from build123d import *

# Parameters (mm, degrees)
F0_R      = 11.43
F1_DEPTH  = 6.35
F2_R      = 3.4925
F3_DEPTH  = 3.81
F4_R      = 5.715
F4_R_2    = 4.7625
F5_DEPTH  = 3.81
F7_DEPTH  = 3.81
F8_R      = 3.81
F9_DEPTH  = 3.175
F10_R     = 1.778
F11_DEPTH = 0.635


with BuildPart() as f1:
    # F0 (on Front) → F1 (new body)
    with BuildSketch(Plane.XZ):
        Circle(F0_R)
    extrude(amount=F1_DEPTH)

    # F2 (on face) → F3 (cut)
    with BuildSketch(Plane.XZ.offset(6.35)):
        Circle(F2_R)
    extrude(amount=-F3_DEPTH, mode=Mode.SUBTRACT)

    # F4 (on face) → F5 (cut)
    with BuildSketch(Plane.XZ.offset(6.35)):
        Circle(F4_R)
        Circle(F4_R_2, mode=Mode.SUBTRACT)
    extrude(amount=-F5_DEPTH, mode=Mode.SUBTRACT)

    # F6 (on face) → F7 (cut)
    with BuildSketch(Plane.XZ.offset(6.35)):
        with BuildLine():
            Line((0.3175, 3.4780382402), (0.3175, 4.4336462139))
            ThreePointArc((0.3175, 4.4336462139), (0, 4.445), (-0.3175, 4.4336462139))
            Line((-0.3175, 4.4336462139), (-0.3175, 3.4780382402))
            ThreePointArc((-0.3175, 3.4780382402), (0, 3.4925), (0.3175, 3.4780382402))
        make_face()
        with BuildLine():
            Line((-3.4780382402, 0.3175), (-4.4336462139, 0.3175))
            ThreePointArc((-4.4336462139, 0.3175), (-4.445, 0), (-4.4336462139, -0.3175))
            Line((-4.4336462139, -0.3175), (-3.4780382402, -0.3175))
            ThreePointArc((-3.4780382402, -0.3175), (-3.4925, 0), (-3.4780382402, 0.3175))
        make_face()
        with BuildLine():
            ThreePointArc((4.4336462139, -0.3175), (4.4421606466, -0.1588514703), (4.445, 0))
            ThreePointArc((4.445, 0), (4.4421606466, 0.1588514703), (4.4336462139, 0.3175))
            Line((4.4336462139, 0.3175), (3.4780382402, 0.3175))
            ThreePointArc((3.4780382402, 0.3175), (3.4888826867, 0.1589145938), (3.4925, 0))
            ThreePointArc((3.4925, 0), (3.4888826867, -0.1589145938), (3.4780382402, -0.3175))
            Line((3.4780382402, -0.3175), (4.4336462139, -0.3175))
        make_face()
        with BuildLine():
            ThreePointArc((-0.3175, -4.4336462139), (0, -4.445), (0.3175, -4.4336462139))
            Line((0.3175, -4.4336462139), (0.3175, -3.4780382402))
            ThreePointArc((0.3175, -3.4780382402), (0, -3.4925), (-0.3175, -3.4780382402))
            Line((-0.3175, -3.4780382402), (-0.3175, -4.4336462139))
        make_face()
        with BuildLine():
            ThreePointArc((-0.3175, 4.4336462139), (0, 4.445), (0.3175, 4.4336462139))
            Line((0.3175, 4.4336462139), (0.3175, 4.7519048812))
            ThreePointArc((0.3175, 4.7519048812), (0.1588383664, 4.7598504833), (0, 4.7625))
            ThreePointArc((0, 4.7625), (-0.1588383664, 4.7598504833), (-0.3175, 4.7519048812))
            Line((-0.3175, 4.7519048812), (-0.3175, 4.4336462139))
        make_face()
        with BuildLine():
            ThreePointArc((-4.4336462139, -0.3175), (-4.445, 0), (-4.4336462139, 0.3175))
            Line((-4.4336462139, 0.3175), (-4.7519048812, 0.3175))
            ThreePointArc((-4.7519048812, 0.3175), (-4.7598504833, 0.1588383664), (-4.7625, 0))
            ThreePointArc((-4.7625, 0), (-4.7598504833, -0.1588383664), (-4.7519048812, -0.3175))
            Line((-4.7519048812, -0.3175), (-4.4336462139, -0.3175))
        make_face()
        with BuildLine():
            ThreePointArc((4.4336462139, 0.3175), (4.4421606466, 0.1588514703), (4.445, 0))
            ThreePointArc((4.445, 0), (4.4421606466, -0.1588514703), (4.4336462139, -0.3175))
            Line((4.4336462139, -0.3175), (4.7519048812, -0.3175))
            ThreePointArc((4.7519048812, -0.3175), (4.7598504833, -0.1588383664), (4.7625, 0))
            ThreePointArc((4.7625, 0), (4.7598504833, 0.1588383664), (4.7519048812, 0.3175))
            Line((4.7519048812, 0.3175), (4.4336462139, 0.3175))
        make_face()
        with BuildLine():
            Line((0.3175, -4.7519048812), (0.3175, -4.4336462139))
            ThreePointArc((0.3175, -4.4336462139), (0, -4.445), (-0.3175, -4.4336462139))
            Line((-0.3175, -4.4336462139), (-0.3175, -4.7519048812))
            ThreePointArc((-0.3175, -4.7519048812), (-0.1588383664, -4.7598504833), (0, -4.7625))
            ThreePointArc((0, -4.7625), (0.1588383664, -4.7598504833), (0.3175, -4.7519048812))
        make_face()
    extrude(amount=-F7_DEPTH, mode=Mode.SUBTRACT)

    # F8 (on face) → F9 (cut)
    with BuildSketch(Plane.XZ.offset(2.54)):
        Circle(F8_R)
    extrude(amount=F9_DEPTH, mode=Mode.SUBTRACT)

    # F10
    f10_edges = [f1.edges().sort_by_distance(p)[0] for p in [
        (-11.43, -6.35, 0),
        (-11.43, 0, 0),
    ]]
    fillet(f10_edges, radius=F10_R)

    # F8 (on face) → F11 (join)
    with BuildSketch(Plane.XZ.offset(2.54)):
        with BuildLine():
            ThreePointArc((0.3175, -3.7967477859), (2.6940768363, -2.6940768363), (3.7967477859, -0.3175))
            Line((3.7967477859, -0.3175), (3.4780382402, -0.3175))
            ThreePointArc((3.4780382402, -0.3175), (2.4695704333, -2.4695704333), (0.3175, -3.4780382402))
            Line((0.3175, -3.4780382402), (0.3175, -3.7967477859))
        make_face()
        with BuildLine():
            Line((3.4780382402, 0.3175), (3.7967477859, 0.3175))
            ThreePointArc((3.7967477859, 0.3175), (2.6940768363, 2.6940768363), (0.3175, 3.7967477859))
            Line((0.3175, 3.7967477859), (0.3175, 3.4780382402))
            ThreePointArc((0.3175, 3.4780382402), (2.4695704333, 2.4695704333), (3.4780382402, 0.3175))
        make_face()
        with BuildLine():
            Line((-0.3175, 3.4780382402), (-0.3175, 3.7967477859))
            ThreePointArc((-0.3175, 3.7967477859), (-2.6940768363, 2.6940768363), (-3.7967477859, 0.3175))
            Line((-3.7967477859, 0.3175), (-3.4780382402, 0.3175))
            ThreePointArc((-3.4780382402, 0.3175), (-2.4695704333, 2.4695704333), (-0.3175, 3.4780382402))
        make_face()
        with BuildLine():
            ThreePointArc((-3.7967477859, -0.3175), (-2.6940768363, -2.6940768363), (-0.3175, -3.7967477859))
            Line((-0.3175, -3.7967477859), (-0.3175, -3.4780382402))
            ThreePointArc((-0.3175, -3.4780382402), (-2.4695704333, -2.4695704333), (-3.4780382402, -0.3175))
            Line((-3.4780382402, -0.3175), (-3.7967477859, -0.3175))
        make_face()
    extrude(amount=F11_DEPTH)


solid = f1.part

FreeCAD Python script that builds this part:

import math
import FreeCAD as App
import Part
import Sketcher

V = App.Vector
Q = App.Units.Quantity


def edges_at(feature, points):
    """Names of the edges that pass closest to the given points."""
    edges = feature.Shape.Edges
    near = lambda p: min(range(len(edges)), key=lambda i: edges[i].distToShape(Part.Vertex(*p))[0])
    return sorted({f"Edge{near(p) + 1}" for p in points})

doc = App.newDocument("Part")
params = doc.addObject("Spreadsheet::Sheet", "Params")
for row, (alias, value) in enumerate([
    ("sketch1_diameter", "0.9 in"),
    ("pad1_length", "0.25 in"),
    ("sketch2_diameter", "0.275 in"),
    ("pocket1_length", "0.15 in"),
    ("sketch3_diameter", "0.45 in"),
    ("sketch3_diameter2", "0.375 in"),
    ("pocket2_length", "0.15 in"),
    ("sketch4_radius", "0.1875 in"),
    ("pocket3_length", "0.15 in"),
    ("sketch5_diameter", "0.3 in"),
    ("pocket4_length", "0.125 in"),
    ("fillet_radius", "0.07 in"),
    ("sketch6_radius", "0.15 in"),
    ("pad2_length", "0.025 in"),
], start=1):
    params.set(f"A{row}", alias)
    params.set(f"B{row}", "=" + value)
    params.setAlias(f"B{row}", alias)

body = doc.addObject("PartDesign::Body", "Body")

sketch1 = body.newObject("Sketcher::SketchObject", "Sketch")
sketch1.AttachmentSupport = (doc.getObject("XZ_Plane"), [""])
sketch1.MapMode = "FlatFace"
sketch1.addGeometry(Part.Circle(V(0, 0, 0), V(0, 0, 1), 11), False)
sketch1.addConstraint([
    Sketcher.Constraint("Coincident", 0, 3, -1, 1),
    Sketcher.Constraint("Diameter", 0, Q("0.9 in")),
])
sketch1.setExpression("Constraints[1]", "Params.sketch1_diameter")
pad1 = body.newObject("PartDesign::Pad", "Pad")
pad1.Profile = sketch1
pad1.setExpression("Length", "Params.pad1_length")

sketch2 = body.newObject("Sketcher::SketchObject", "Sketch001")
sketch2.AttachmentSupport = (doc.getObject("XZ_Plane"), [""])
sketch2.MapMode = "FlatFace"
sketch2.AttachmentOffset = App.Placement(V(0, 0, 0.25 * 25.4), App.Rotation())
sketch2.addGeometry(Part.Circle(V(0, 0, 0), V(0, 0, 1), 3.5), False)
sketch2.addConstraint([
    Sketcher.Constraint("Coincident", 0, 3, -1, 1),
    Sketcher.Constraint("Diameter", 0, Q("0.275 in")),
])
sketch2.setExpression("Constraints[1]", "Params.sketch2_diameter")
pocket1 = body.newObject("PartDesign::Pocket", "Pocket")
pocket1.Profile = sketch2
pocket1.setExpression("Length", "Params.pocket1_length")

sketch3 = body.newObject("Sketcher::SketchObject", "Sketch002")
sketch3.AttachmentSupport = (doc.getObject("XZ_Plane"), [""])
sketch3.MapMode = "FlatFace"
sketch3.AttachmentOffset = App.Placement(V(0, 0, 0.25 * 25.4), App.Rotation())
sketch3.addGeometry([
    Part.Circle(V(0, 0, 0), V(0, 0, 1), 5.7),
    Part.Circle(V(0, 0, 0), V(0, 0, 1), 4.8),
], False)
sketch3.addConstraint([
    Sketcher.Constraint("Coincident", 0, 3, -1, 1),
    Sketcher.Constraint("Coincident", 1, 3, -1, 1),
    Sketcher.Constraint("Diameter", 0, Q("0.45 in")),
    Sketcher.Constraint("Diameter", 1, Q("0.375 in")),
])
sketch3.setExpression("Constraints[2]", "Params.sketch3_diameter")
sketch3.setExpression("Constraints[3]", "Params.sketch3_diameter2")
pocket2 = body.newObject("PartDesign::Pocket", "Pocket001")
pocket2.Profile = sketch3
pocket2.setExpression("Length", "Params.pocket2_length")

sketch4 = body.newObject("Sketcher::SketchObject", "Sketch003")
sketch4.AttachmentSupport = (doc.getObject("XZ_Plane"), [""])
sketch4.MapMode = "FlatFace"
sketch4.AttachmentOffset = App.Placement(V(0, 0, 0.25 * 25.4), App.Rotation())
sketch4.addGeometry([
    Part.LineSegment(V(0.32, 3.48, 0), V(0.32, 4.75, 0)),
    Part.ArcOfCircle(Part.Circle(V(0, 0, 0), V(0, 0, 1), 4.76), math.radians(86.18), math.radians(90)),
    Part.ArcOfCircle(Part.Circle(V(0, 0, 0), V(0, 0, 1), 4.76), math.radians(90), math.radians(93.82)),
    Part.LineSegment(V(-0.32, 4.75, 0), V(-0.32, 3.48, 0)),
    Part.ArcOfCircle(Part.Circle(V(0, 0, 0), V(0, 0, 1), 3.49), math.radians(84.78), math.radians(95.22)),
    Part.LineSegment(V(-3.48, 0.32, 0), V(-4.75, 0.32, 0)),
    Part.ArcOfCircle(Part.Circle(V(0, 0, 0), V(0, 0, 1), 4.76), math.radians(176.18), math.radians(180)),
    Part.ArcOfCircle(Part.Circle(V(0, 0, 0), V(0, 0, 1), 4.76), math.radians(180), math.radians(183.82)),
    Part.LineSegment(V(-4.75, -0.32, 0), V(-3.48, -0.32, 0)),
    Part.ArcOfCircle(Part.Circle(V(0, 0, 0), V(0, 0, 1), 3.49), math.radians(174.78), math.radians(185.22)),
    Part.ArcOfCircle(Part.Circle(V(0, 0, 0), V(0, 0, 1), 3.49), math.radians(0), math.radians(5.22)),
    Part.ArcOfCircle(Part.Circle(V(0, 0, 0), V(0, 0, 1), 3.49), math.radians(-5.22), math.radians(0)),
    Part.LineSegment(V(3.48, -0.32, 0), V(4.75, -0.32, 0)),
    Part.ArcOfCircle(Part.Circle(V(0, 0, 0), V(0, 0, 1), 4.76), math.radians(-3.82), math.radians(0)),
    Part.ArcOfCircle(Part.Circle(V(0, 0, 0), V(0, 0, 1), 4.76), math.radians(0), math.radians(3.82)),
    Part.LineSegment(V(4.75, 0.32, 0), V(3.48, 0.32, 0)),
    Part.ArcOfCircle(Part.Circle(V(0, 0, 0), V(0, 0, 1), 3.49), math.radians(-95.22), math.radians(-84.78)),
    Part.LineSegment(V(-0.32, -3.48, 0), V(-0.32, -4.75, 0)),
    Part.ArcOfCircle(Part.Circle(V(0, 0, 0), V(0, 0, 1), 4.76), math.radians(-93.82), math.radians(-90)),
    Part.ArcOfCircle(Part.Circle(V(0, 0, 0), V(0, 0, 1), 4.76), math.radians(-90), math.radians(-86.18)),
    Part.LineSegment(V(0.32, -4.75, 0), V(0.32, -3.48, 0)),
], False)
sketch4.addConstraint([
    Sketcher.Constraint("Coincident", 0, 2, 1, 1),
    Sketcher.Constraint("Tangent", 1, 2, 2, 1),
    Sketcher.Constraint("Coincident", 2, 2, 3, 1),
    Sketcher.Constraint("Coincident", 3, 2, 4, 2),
    Sketcher.Constraint("Coincident", 4, 1, 0, 1),
    Sketcher.Constraint("Coincident", 5, 2, 6, 1),
    Sketcher.Constraint("Tangent", 6, 2, 7, 1),
    Sketcher.Constraint("Coincident", 7, 2, 8, 1),
    Sketcher.Constraint("Coincident", 8, 2, 9, 2),
    Sketcher.Constraint("Coincident", 9, 1, 5, 1),
    Sketcher.Constraint("Tangent", 10, 1, 11, 2),
    Sketcher.Constraint("Coincident", 11, 1, 12, 1),
    Sketcher.Constraint("Coincident", 12, 2, 13, 1),
    Sketcher.Constraint("Tangent", 13, 2, 14, 1),
    Sketcher.Constraint("Coincident", 14, 2, 15, 1),
    Sketcher.Constraint("Coincident", 15, 2, 10, 2),
    Sketcher.Constraint("Coincident", 16, 1, 17, 1),
    Sketcher.Constraint("Coincident", 17, 2, 18, 1),
    Sketcher.Constraint("Tangent", 18, 2, 19, 1),
    Sketcher.Constraint("Coincident", 19, 2, 20, 1),
    Sketcher.Constraint("Coincident", 20, 2, 16, 2),
    Sketcher.Constraint("Vertical", 0),
    Sketcher.Constraint("Vertical", 3),
    Sketcher.Constraint("Horizontal", 5),
    Sketcher.Constraint("Horizontal", 8),
    Sketcher.Constraint("Horizontal", 12),
    Sketcher.Constraint("Horizontal", 15),
    Sketcher.Constraint("Vertical", 17),
    Sketcher.Constraint("Vertical", 20),
    Sketcher.Constraint("Coincident", 1, 3, -1, 1),
    Sketcher.Constraint("Coincident", 4, 3, -1, 1),
    Sketcher.Constraint("Coincident", 6, 3, -1, 1),
    Sketcher.Constraint("Coincident", 9, 3, -1, 1),
    Sketcher.Constraint("Coincident", 10, 3, -1, 1),
    Sketcher.Constraint("Coincident", 13, 3, -1, 1),
    Sketcher.Constraint("Coincident", 16, 3, -1, 1),
    Sketcher.Constraint("Coincident", 18, 3, -1, 1),
    Sketcher.Constraint("Equal", 1, 2),
    Sketcher.Constraint("Equal", 2, 6),
    Sketcher.Constraint("Equal", 6, 7),
    Sketcher.Constraint("Equal", 4, 9),
    Sketcher.Constraint("Equal", 9, 10),
    Sketcher.Constraint("Equal", 10, 11),
    Sketcher.Constraint("Equal", 7, 13),
    Sketcher.Constraint("Equal", 13, 14),
    Sketcher.Constraint("Equal", 11, 16),
    Sketcher.Constraint("Equal", 14, 18),
    Sketcher.Constraint("Equal", 18, 19),
    Sketcher.Constraint("PointOnObject", 1, 2, -2),
    Sketcher.Constraint("PointOnObject", 6, 2, -1),
    Sketcher.Constraint("PointOnObject", 10, 1, -1),
    Sketcher.Constraint("PointOnObject", 13, 2, -1),
    Sketcher.Constraint("PointOnObject", 18, 2, -2),
    Sketcher.Constraint("Horizontal", 0, 2, 2, 2),
    Sketcher.Constraint("Horizontal", 8, 2, 11, 1),
    Sketcher.Constraint("Horizontal", 9, 1, 14, 2),
    Sketcher.Constraint("Horizontal", 17, 2, 19, 2),
    Sketcher.Constraint("Vertical", 5, 2, 7, 2),
    Sketcher.Constraint("Vertical", 3, 2, 16, 1),
    Sketcher.Constraint("Equal", 15, 0),
    Sketcher.Constraint("Radius", 1, Q("0.1875 in")),
    Sketcher.Constraint("Radius", 4, Q("0.1375 in")),
    Sketcher.Constraint("DistanceX", 2, 2, 0, 2, Q("0.025 in")),
])
sketch4.setExpression("Constraints[60]", "Params.sketch4_radius")
pocket3 = body.newObject("PartDesign::Pocket", "Pocket002")
pocket3.Profile = sketch4
pocket3.setExpression("Length", "Params.pocket3_length")

sketch5 = body.newObject("Sketcher::SketchObject", "Sketch004")
sketch5.AttachmentSupport = (doc.getObject("XZ_Plane"), [""])
sketch5.MapMode = "FlatFace"
sketch5.AttachmentOffset = App.Placement(V(0, 0, 0.1 * 25.4), App.Rotation())
sketch5.addGeometry(Part.Circle(V(0, 0, 0), V(0, 0, 1), 3.8), False)
sketch5.addConstraint([
    Sketcher.Constraint("Coincident", 0, 3, -1, 1),
    Sketcher.Constraint("Diameter", 0, Q("0.3 in")),
])
sketch5.setExpression("Constraints[1]", "Params.sketch5_diameter")
pocket4 = body.newObject("PartDesign::Pocket", "Pocket003")
pocket4.Profile = sketch5
pocket4.setExpression("Length", "Params.pocket4_length")
pocket4.Reversed = True
doc.recompute()

fillet = body.newObject("PartDesign::Fillet", "Fillet")
fillet.Base = (pocket4, edges_at(pocket4, [(-11.43, -6.35, 0), (-11.43, 0, 0)]))
fillet.setExpression("Radius", "Params.fillet_radius")

sketch6 = body.newObject("Sketcher::SketchObject", "Sketch005")
sketch6.AttachmentSupport = (doc.getObject("XZ_Plane"), [""])
sketch6.MapMode = "FlatFace"
sketch6.AttachmentOffset = App.Placement(V(0, 0, 0.1 * 25.4), App.Rotation())
sketch6.addGeometry([
    Part.ArcOfCircle(Part.Circle(V(0, 0, 0), V(0, 0, 1), 3.81), math.radians(-85), math.radians(-5)),
    Part.LineSegment(V(3.8, -0.32, 0), V(3.48, -0.32, 0)),
    Part.ArcOfCircle(Part.Circle(V(0, 0, 0), V(0, 0, 1), 3.49), math.radians(-85), math.radians(-5)),
    Part.LineSegment(V(0.32, -3.48, 0), V(0.32, -3.8, 0)),
    Part.LineSegment(V(3.48, 0.32, 0), V(3.8, 0.32, 0)),
    Part.ArcOfCircle(Part.Circle(V(0, 0, 0), V(0, 0, 1), 3.81), math.radians(5), math.radians(85)),
    Part.LineSegment(V(0.32, 3.8, 0), V(0.32, 3.48, 0)),
    Part.ArcOfCircle(Part.Circle(V(0, 0, 0), V(0, 0, 1), 3.49), math.radians(5), math.radians(85)),
    Part.LineSegment(V(-0.32, 3.48, 0), V(-0.32, 3.8, 0)),
    Part.ArcOfCircle(Part.Circle(V(0, 0, 0), V(0, 0, 1), 3.81), math.radians(95), math.radians(175)),
    Part.LineSegment(V(-3.8, 0.32, 0), V(-3.48, 0.32, 0)),
    Part.ArcOfCircle(Part.Circle(V(0, 0, 0), V(0, 0, 1), 3.49), math.radians(95), math.radians(175)),
    Part.ArcOfCircle(Part.Circle(V(0, 0, 0), V(0, 0, 1), 3.81), math.radians(-175), math.radians(-95)),
    Part.LineSegment(V(-0.32, -3.8, 0), V(-0.32, -3.48, 0)),
    Part.ArcOfCircle(Part.Circle(V(0, 0, 0), V(0, 0, 1), 3.49), math.radians(-175), math.radians(-95)),
    Part.LineSegment(V(-3.48, -0.32, 0), V(-3.8, -0.32, 0)),
], False)
sketch6.addConstraint([
    Sketcher.Constraint("Coincident", 0, 2, 1, 1),
    Sketcher.Constraint("Coincident", 1, 2, 2, 2),
    Sketcher.Constraint("Coincident", 2, 1, 3, 1),
    Sketcher.Constraint("Coincident", 3, 2, 0, 1),
    Sketcher.Constraint("Coincident", 4, 2, 5, 1),
    Sketcher.Constraint("Coincident", 5, 2, 6, 1),
    Sketcher.Constraint("Coincident", 6, 2, 7, 2),
    Sketcher.Constraint("Coincident", 7, 1, 4, 1),
    Sketcher.Constraint("Coincident", 8, 2, 9, 1),
    Sketcher.Constraint("Coincident", 9, 2, 10, 1),
    Sketcher.Constraint("Coincident", 10, 2, 11, 2),
    Sketcher.Constraint("Coincident", 11, 1, 8, 1),
    Sketcher.Constraint("Coincident", 12, 2, 13, 1),
    Sketcher.Constraint("Coincident", 13, 2, 14, 2),
    Sketcher.Constraint("Coincident", 14, 1, 15, 1),
    Sketcher.Constraint("Coincident", 15, 2, 12, 1),
    Sketcher.Constraint("Horizontal", 1),
    Sketcher.Constraint("Vertical", 3),
    Sketcher.Constraint("Horizontal", 4),
    Sketcher.Constraint("Vertical", 6),
    Sketcher.Constraint("Vertical", 8),
    Sketcher.Constraint("Horizontal", 10),
    Sketcher.Constraint("Vertical", 13),
    Sketcher.Constraint("Horizontal", 15),
    Sketcher.Constraint("Coincident", 0, 3, -1, 1),
    Sketcher.Constraint("Coincident", 2, 3, -1, 1),
    Sketcher.Constraint("Coincident", 5, 3, -1, 1),
    Sketcher.Constraint("Coincident", 7, 3, -1, 1),
    Sketcher.Constraint("Coincident", 9, 3, -1, 1),
    Sketcher.Constraint("Coincident", 11, 3, -1, 1),
    Sketcher.Constraint("Coincident", 12, 3, -1, 1),
    Sketcher.Constraint("Coincident", 14, 3, -1, 1),
    Sketcher.Constraint("Equal", 0, 5),
    Sketcher.Constraint("Equal", 2, 7),
    Sketcher.Constraint("Equal", 5, 9),
    Sketcher.Constraint("Equal", 7, 11),
    Sketcher.Constraint("Equal", 9, 12),
    Sketcher.Constraint("Equal", 11, 14),
    Sketcher.Constraint("Horizontal", 5, 2, 8, 2),
    Sketcher.Constraint("Horizontal", 7, 1, 9, 2),
    Sketcher.Constraint("Horizontal", 3, 2, 12, 2),
    Sketcher.Constraint("Horizontal", 1, 2, 14, 1),
    Sketcher.Constraint("Vertical", 0, 2, 4, 2),
    Sketcher.Constraint("Vertical", 3, 2, 5, 2),
    Sketcher.Constraint("Radius", 0, Q("0.15 in")),
    Sketcher.Constraint("Radius", 2, Q("0.1375 in")),
    Sketcher.Constraint("DistanceY", 0, 2, 4, 2, Q("0.025 in")),
    Sketcher.Constraint("DistanceX", 8, 2, 5, 2, Q("0.025 in")),
])
sketch6.setExpression("Constraints[44]", "Params.sketch6_radius")
pad2 = body.newObject("PartDesign::Pad", "Pad001")
pad2.Profile = sketch6
pad2.setExpression("Length", "Params.pad2_length")

doc.recompute()
